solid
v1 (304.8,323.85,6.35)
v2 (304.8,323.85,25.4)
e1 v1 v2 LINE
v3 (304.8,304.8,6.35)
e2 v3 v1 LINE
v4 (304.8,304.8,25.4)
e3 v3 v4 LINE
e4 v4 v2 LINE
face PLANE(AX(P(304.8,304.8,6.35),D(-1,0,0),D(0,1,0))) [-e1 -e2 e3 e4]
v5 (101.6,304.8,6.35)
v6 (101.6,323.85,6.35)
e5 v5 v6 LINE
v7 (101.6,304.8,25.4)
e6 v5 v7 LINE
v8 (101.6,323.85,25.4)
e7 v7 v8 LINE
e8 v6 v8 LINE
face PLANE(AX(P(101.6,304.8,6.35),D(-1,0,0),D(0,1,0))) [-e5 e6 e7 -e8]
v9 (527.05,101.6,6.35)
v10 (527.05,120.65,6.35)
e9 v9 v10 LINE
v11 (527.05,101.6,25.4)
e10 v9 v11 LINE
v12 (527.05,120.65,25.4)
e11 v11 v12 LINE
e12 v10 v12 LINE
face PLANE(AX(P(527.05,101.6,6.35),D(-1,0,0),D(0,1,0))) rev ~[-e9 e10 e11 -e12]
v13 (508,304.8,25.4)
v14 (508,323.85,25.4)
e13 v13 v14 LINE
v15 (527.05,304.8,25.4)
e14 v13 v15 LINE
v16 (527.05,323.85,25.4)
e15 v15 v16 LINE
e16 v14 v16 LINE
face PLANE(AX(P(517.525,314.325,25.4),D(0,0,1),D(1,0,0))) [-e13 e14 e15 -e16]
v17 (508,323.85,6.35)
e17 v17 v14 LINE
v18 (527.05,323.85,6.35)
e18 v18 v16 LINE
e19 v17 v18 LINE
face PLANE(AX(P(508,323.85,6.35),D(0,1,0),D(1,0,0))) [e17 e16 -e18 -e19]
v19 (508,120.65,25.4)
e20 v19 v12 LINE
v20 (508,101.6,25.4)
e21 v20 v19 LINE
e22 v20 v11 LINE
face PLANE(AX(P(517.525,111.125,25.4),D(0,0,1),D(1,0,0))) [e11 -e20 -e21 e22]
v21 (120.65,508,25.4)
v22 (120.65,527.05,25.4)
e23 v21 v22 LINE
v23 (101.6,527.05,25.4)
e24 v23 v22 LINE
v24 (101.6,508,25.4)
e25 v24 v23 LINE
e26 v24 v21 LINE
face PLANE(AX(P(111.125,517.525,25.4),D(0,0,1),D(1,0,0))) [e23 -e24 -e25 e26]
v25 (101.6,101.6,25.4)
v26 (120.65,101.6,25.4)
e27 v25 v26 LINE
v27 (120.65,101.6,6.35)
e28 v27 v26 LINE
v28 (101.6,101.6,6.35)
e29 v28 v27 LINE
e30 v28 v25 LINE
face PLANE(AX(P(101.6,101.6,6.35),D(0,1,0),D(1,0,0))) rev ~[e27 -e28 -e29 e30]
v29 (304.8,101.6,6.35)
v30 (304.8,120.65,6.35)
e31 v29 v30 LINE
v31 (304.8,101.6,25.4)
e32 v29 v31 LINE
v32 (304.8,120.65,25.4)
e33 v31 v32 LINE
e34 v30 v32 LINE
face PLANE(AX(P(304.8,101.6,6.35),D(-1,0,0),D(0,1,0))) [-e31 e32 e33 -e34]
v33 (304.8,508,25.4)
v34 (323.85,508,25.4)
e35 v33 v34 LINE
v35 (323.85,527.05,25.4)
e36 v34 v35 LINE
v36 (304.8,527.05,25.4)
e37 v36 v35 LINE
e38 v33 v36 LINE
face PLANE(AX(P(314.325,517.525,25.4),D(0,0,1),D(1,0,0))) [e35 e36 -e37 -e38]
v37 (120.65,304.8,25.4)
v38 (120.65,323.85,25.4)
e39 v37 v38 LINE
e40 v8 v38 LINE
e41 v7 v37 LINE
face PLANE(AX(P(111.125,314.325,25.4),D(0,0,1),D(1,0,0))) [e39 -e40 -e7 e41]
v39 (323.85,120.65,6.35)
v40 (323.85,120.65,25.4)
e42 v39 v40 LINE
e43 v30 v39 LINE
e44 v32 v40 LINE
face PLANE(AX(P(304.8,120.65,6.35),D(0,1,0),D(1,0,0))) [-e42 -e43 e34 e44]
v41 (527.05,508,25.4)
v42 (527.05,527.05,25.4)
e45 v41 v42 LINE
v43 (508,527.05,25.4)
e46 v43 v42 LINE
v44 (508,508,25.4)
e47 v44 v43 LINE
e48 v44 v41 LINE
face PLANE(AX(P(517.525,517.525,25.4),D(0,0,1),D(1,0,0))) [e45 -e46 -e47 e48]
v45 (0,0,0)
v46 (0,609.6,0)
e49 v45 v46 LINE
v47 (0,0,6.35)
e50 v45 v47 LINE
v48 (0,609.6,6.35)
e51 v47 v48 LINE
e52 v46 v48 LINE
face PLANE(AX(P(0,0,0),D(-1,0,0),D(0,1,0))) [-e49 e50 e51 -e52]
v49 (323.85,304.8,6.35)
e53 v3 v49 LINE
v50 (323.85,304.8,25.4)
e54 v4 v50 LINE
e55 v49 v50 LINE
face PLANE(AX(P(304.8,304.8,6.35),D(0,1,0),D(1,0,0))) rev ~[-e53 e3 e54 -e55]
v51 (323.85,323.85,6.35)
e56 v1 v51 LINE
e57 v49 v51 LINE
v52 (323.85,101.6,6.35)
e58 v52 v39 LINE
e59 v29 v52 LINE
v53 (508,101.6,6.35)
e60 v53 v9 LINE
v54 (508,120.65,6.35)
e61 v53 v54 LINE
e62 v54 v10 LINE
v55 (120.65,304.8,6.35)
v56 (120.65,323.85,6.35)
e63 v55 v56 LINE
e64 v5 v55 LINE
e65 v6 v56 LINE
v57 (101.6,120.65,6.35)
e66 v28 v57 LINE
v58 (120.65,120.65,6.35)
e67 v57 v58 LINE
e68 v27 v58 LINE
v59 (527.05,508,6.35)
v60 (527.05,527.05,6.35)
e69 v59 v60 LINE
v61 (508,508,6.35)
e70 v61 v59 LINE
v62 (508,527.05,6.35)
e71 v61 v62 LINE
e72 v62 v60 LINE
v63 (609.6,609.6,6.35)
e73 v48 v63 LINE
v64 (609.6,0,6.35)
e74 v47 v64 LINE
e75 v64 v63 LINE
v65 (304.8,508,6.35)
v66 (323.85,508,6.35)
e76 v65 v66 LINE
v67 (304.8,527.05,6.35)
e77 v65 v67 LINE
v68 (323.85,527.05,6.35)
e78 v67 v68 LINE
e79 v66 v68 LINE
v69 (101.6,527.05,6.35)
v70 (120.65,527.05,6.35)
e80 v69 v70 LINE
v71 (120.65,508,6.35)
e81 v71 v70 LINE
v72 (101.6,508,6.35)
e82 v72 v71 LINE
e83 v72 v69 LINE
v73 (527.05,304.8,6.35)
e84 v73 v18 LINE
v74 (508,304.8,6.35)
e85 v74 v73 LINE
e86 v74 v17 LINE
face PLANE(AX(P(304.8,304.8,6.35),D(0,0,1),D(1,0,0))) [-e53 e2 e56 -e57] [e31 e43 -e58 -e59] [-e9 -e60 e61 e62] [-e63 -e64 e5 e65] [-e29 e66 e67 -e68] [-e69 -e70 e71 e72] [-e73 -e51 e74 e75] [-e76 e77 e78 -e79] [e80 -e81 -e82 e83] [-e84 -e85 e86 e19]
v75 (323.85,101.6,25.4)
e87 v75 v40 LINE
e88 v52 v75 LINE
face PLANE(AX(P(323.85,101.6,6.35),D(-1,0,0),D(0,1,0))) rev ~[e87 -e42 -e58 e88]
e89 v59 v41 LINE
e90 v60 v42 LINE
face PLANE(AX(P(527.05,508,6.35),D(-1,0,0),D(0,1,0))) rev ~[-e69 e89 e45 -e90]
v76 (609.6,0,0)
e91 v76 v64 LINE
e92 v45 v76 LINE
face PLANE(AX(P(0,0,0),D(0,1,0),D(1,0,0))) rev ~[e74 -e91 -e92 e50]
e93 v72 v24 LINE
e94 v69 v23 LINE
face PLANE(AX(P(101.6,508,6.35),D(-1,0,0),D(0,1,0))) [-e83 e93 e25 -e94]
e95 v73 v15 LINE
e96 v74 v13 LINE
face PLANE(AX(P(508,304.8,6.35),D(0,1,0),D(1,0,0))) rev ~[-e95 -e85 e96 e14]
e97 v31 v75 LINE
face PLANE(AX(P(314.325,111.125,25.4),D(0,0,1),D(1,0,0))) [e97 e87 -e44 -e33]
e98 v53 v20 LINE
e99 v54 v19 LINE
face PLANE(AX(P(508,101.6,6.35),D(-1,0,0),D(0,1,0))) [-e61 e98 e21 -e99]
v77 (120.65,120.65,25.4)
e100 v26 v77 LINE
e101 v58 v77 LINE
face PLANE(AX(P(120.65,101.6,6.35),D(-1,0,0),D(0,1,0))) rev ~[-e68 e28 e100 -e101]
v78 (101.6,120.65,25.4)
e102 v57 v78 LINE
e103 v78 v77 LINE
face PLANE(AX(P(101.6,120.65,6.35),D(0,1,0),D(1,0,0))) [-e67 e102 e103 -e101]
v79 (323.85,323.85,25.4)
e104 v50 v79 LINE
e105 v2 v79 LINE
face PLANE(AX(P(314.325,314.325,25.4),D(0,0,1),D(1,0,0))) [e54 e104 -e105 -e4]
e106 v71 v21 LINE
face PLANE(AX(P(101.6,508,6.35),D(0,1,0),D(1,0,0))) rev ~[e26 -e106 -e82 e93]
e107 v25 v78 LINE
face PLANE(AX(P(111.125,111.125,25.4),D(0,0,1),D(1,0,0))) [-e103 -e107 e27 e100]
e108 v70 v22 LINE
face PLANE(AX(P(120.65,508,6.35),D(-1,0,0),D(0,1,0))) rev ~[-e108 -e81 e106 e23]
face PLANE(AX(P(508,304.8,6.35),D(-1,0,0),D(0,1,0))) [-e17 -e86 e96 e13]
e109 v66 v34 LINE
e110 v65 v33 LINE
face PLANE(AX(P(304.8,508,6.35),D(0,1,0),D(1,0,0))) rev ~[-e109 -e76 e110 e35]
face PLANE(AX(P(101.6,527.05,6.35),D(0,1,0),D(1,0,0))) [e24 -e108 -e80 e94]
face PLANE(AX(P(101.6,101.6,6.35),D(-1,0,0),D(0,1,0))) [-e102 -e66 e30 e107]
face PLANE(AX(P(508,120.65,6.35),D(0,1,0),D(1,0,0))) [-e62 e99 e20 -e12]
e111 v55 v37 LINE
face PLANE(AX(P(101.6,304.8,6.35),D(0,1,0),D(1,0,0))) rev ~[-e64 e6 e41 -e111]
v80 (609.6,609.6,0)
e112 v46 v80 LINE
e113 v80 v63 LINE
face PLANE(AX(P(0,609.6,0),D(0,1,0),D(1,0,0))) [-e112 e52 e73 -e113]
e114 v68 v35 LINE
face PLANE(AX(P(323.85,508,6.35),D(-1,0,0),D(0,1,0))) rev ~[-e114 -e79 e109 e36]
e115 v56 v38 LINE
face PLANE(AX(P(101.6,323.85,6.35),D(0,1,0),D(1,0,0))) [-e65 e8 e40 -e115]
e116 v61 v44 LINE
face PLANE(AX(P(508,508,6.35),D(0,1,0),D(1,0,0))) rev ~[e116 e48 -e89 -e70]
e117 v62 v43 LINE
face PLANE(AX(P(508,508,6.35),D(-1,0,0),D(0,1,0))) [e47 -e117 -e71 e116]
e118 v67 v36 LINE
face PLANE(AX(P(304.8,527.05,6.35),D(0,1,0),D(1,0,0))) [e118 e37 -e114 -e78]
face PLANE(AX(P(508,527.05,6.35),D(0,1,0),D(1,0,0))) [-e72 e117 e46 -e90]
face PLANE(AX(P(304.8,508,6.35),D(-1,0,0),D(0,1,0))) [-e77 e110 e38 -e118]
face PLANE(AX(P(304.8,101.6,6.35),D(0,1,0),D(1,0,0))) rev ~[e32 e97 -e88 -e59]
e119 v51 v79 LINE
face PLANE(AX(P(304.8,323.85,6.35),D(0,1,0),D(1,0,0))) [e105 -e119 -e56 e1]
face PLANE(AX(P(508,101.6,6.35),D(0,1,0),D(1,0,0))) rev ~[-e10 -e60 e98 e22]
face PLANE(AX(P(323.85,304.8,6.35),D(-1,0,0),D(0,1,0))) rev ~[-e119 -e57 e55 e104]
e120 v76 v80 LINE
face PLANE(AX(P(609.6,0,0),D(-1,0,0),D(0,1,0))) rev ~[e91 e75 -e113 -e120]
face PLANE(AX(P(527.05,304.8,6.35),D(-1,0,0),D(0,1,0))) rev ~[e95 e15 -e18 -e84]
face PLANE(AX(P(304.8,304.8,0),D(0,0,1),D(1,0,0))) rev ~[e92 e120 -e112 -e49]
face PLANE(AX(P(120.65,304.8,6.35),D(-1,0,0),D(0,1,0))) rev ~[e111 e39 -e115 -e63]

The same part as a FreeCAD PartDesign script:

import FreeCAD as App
import Part
import Sketcher

V = App.Vector
Q = App.Units.Quantity

doc = App.newDocument("Part")
body = doc.addObject("PartDesign::Body", "Body")

# Sketch on XY plane
sketch1 = body.newObject("Sketcher::SketchObject", "Sketch")
sketch1.AttachmentSupport = (doc.getObject("XY_Plane"), [""])
sketch1.MapMode = "FlatFace"
sketch1.addGeometry(Part.LineSegment(V(0, 610, 0), V(0, 0, 0)), False)
sketch1.addGeometry(Part.LineSegment(V(0, 0, 0), V(610, 0, 0)), False)
sketch1.addGeometry(Part.LineSegment(V(610, 0, 0), V(610, 610, 0)), False)
sketch1.addGeometry(Part.LineSegment(V(610, 610, 0), V(0, 610, 0)), False)
sketch1.addConstraint(Sketcher.Constraint("Coincident", 0, 2, 1, 1))
sketch1.addConstraint(Sketcher.Constraint("Coincident", 1, 2, 2, 1))
sketch1.addConstraint(Sketcher.Constraint("Coincident", 2, 2, 3, 1))
sketch1.addConstraint(Sketcher.Constraint("Coincident", 3, 2, 0, 1))
sketch1.addConstraint(Sketcher.Constraint("Vertical", 0))
sketch1.addConstraint(Sketcher.Constraint("Horizontal", 1))
sketch1.addConstraint(Sketcher.Constraint("Vertical", 2))
sketch1.addConstraint(Sketcher.Constraint("Horizontal", 3))
sketch1.addConstraint(Sketcher.Constraint("Coincident", 0, 2, -1, 1))
sketch1.addConstraint(Sketcher.Constraint("Equal", 3, 0))
sketch1.addConstraint(Sketcher.Constraint("DistanceX", 1, 1, 1, 2, Q("24 in")))
pad1 = body.newObject("PartDesign::Pad", "Pad")
pad1.Profile = sketch1
pad1.Length = Q("0.25 in")

# Sketch on XY plane
sketch2 = body.newObject("Sketcher::SketchObject", "Sketch001")
sketch2.AttachmentSupport = (doc.getObject("XY_Plane"), [""])
sketch2.MapMode = "FlatFace"
sketch2.AttachmentOffset = App.Placement(V(0, 0, 0.25 * 25.4), App.Rotation())
sketch2.addGeometry(Part.LineSegment(V(102, 121, 0), V(102, 102, 0)), False)
sketch2.addGeometry(Part.LineSegment(V(102, 102, 0), V(121, 102, 0)), False)
sketch2.addGeometry(Part.LineSegment(V(121, 102, 0), V(121, 121, 0)), False)
sketch2.addGeometry(Part.LineSegment(V(121, 121, 0), V(102, 121, 0)), False)
sketch2.addGeometry(Part.LineSegment(V(102, 324, 0), V(102, 305, 0)), False)
sketch2.addGeometry(Part.LineSegment(V(102, 305, 0), V(121, 305, 0)), False)
sketch2.addGeometry(Part.LineSegment(V(121, 305, 0), V(121, 324, 0)), False)
sketch2.addGeometry(Part.LineSegment(V(121, 324, 0), V(102, 324, 0)), False)
sketch2.addGeometry(Part.LineSegment(V(102, 527, 0), V(102, 508, 0)), False)
sketch2.addGeometry(Part.LineSegment(V(102, 508, 0), V(121, 508, 0)), False)
sketch2.addGeometry(Part.LineSegment(V(121, 508, 0), V(121, 527, 0)), False)
sketch2.addGeometry(Part.LineSegment(V(121, 527, 0), V(102, 527, 0)), False)
sketch2.addGeometry(Part.LineSegment(V(305, 121, 0), V(305, 102, 0)), False)
sketch2.addGeometry(Part.LineSegment(V(305, 102, 0), V(324, 102, 0)), False)
sketch2.addGeometry(Part.LineSegment(V(324, 102, 0), V(324, 121, 0)), False)
sketch2.addGeometry(Part.LineSegment(V(324, 121, 0), V(305, 121, 0)), False)
sketch2.addGeometry(Part.LineSegment(V(305, 324, 0), V(305, 305, 0)), False)
sketch2.addGeometry(Part.LineSegment(V(305, 305, 0), V(324, 305, 0)), False)
sketch2.addGeometry(Part.LineSegment(V(324, 305, 0), V(324, 324, 0)), False)
sketch2.addGeometry(Part.LineSegment(V(324, 324, 0), V(305, 324, 0)), False)
sketch2.addGeometry(Part.LineSegment(V(305, 527, 0), V(305, 508, 0)), False)
sketch2.addGeometry(Part.LineSegment(V(305, 508, 0), V(324, 508, 0)), False)
sketch2.addGeometry(Part.LineSegment(V(324, 508, 0), V(324, 527, 0)), False)
sketch2.addGeometry(Part.LineSegment(V(324, 527, 0), V(305, 527, 0)), False)
sketch2.addGeometry(Part.LineSegment(V(508, 121, 0), V(508, 102, 0)), False)
sketch2.addGeometry(Part.LineSegment(V(508, 102, 0), V(527, 102, 0)), False)
sketch2.addGeometry(Part.LineSegment(V(527, 102, 0), V(527, 121, 0)), False)
sketch2.addGeometry(Part.LineSegment(V(527, 121, 0), V(508, 121, 0)), False)
sketch2.addGeometry(Part.LineSegment(V(508, 324, 0), V(508, 305, 0)), False)
sketch2.addGeometry(Part.LineSegment(V(508, 305, 0), V(527, 305, 0)), False)
sketch2.addGeometry(Part.LineSegment(V(527, 305, 0), V(527, 324, 0)), False)
sketch2.addGeometry(Part.LineSegment(V(527, 324, 0), V(508, 324, 0)), False)
sketch2.addGeometry(Part.LineSegment(V(508, 527, 0), V(508, 508, 0)), False)
sketch2.addGeometry(Part.LineSegment(V(508, 508, 0), V(527, 508, 0)), False)
sketch2.addGeometry(Part.LineSegment(V(527, 508, 0), V(527, 527, 0)), False)
sketch2.addGeometry(Part.LineSegment(V(527, 527, 0), V(508, 527, 0)), False)
sketch2.addConstraint(Sketcher.Constraint("Coincident", 0, 2, 1, 1))
sketch2.addConstraint(Sketcher.Constraint("Coincident", 1, 2, 2, 1))
sketch2.addConstraint(Sketcher.Constraint("Coincident", 2, 2, 3, 1))
sketch2.addConstraint(Sketcher.Constraint("Coincident", 3, 2, 0, 1))
sketch2.addConstraint(Sketcher.Constraint("Coincident", 4, 2, 5, 1))
sketch2.addConstraint(Sketcher.Constraint("Coincident", 5, 2, 6, 1))
sketch2.addConstraint(Sketcher.Constraint("Coincident", 6, 2, 7, 1))
sketch2.addConstraint(Sketcher.Constraint("Coincident", 7, 2, 4, 1))
sketch2.addConstraint(Sketcher.Constraint("Coincident", 8, 2, 9, 1))
sketch2.addConstraint(Sketcher.Constraint("Coincident", 9, 2, 10, 1))
sketch2.addConstraint(Sketcher.Constraint("Coincident", 10, 2, 11, 1))
sketch2.addConstraint(Sketcher.Constraint("Coincident", 11, 2, 8, 1))
sketch2.addConstraint(Sketcher.Constraint("Coincident", 12, 2, 13, 1))
sketch2.addConstraint(Sketcher.Constraint("Coincident", 13, 2, 14, 1))
sketch2.addConstraint(Sketcher.Constraint("Coincident", 14, 2, 15, 1))
sketch2.addConstraint(Sketcher.Constraint("Coincident", 15, 2, 12, 1))
sketch2.addConstraint(Sketcher.Constraint("Coincident", 16, 2, 17, 1))
sketch2.addConstraint(Sketcher.Constraint("Coincident", 17, 2, 18, 1))
sketch2.addConstraint(Sketcher.Constraint("Coincident", 18, 2, 19, 1))
sketch2.addConstraint(Sketcher.Constraint("Coincident", 19, 2, 16, 1))
sketch2.addConstraint(Sketcher.Constraint("Coincident", 20, 2, 21, 1))
sketch2.addConstraint(Sketcher.Constraint("Coincident", 21, 2, 22, 1))
sketch2.addConstraint(Sketcher.Constraint("Coincident", 22, 2, 23, 1))
sketch2.addConstraint(Sketcher.Constraint("Coincident", 23, 2, 20, 1))
sketch2.addConstraint(Sketcher.Constraint("Coincident", 24, 2, 25, 1))
sketch2.addConstraint(Sketcher.Constraint("Coincident", 25, 2, 26, 1))
sketch2.addConstraint(Sketcher.Constraint("Coincident", 26, 2, 27, 1))
sketch2.addConstraint(Sketcher.Constraint("Coincident", 27, 2, 24, 1))
sketch2.addConstraint(Sketcher.Constraint("Coincident", 28, 2, 29, 1))
sketch2.addConstraint(Sketcher.Constraint("Coincident", 29, 2, 30, 1))
sketch2.addConstraint(Sketcher.Constraint("Coincident", 30, 2, 31, 1))
sketch2.addConstraint(Sketcher.Constraint("Coincident", 31, 2, 28, 1))
sketch2.addConstraint(Sketcher.Constraint("Coincident", 32, 2, 33, 1))
sketch2.addConstraint(Sketcher.Constraint("Coincident", 33, 2, 34, 1))
sketch2.addConstraint(Sketcher.Constraint("Coincident", 34, 2, 35, 1))
sketch2.addConstraint(Sketcher.Constraint("Coincident", 35, 2, 32, 1))
sketch2.addConstraint(Sketcher.Constraint("Vertical", 0))
sketch2.addConstraint(Sketcher.Constraint("Horizontal", 1))
sketch2.addConstraint(Sketcher.Constraint("Vertical", 2))
sketch2.addConstraint(Sketcher.Constraint("Horizontal", 3))
sketch2.addConstraint(Sketcher.Constraint("Vertical", 4))
sketch2.addConstraint(Sketcher.Constraint("Horizontal", 5))
sketch2.addConstraint(Sketcher.Constraint("Vertical", 6))
sketch2.addConstraint(Sketcher.Constraint("Horizontal", 7))
sketch2.addConstraint(Sketcher.Constraint("Vertical", 8))
sketch2.addConstraint(Sketcher.Constraint("Horizontal", 9))
sketch2.addConstraint(Sketcher.Constraint("Vertical", 10))
sketch2.addConstraint(Sketcher.Constraint("Horizontal", 11))
sketch2.addConstraint(Sketcher.Constraint("Vertical", 12))
sketch2.addConstraint(Sketcher.Constraint("Horizontal", 13))
sketch2.addConstraint(Sketcher.Constraint("Vertical", 14))
sketch2.addConstraint(Sketcher.Constraint("Horizontal", 15))
sketch2.addConstraint(Sketcher.Constraint("Vertical", 16))
sketch2.addConstraint(Sketcher.Constraint("Horizontal", 17))
sketch2.addConstraint(Sketcher.Constraint("Vertical", 18))
sketch2.addConstraint(Sketcher.Constraint("Horizontal", 19))
sketch2.addConstraint(Sketcher.Constraint("Vertical", 20))
sketch2.addConstraint(Sketcher.Constraint("Horizontal", 21))
sketch2.addConstraint(Sketcher.Constraint("Vertical", 22))
sketch2.addConstraint(Sketcher.Constraint("Horizontal", 23))
sketch2.addConstraint(Sketcher.Constraint("Vertical", 24))
sketch2.addConstraint(Sketcher.Constraint("Horizontal", 25))
sketch2.addConstraint(Sketcher.Constraint("Vertical", 26))
sketch2.addConstraint(Sketcher.Constraint("Horizontal", 27))
sketch2.addConstraint(Sketcher.Constraint("Vertical", 28))
sketch2.addConstraint(Sketcher.Constraint("Horizontal", 29))
sketch2.addConstraint(Sketcher.Constraint("Vertical", 30))
sketch2.addConstraint(Sketcher.Constraint("Horizontal", 31))
sketch2.addConstraint(Sketcher.Constraint("Vertical", 32))
sketch2.addConstraint(Sketcher.Constraint("Horizontal", 33))
sketch2.addConstraint(Sketcher.Constraint("Vertical", 34))
sketch2.addConstraint(Sketcher.Constraint("Horizontal", 35))
sketch2.addConstraint(Sketcher.Constraint("Horizontal", 1, 2, 12, 2))
sketch2.addConstraint(Sketcher.Constraint("Horizontal", 3, 2, 14, 2))
sketch2.addConstraint(Sketcher.Constraint("Horizontal", 5, 2, 16, 2))
sketch2.addConstraint(Sketcher.Constraint("Horizontal", 7, 2, 18, 2))
sketch2.addConstraint(Sketcher.Constraint("Horizontal", 9, 2, 20, 2))
sketch2.addConstraint(Sketcher.Constraint("Horizontal", 11, 2, 22, 2))
sketch2.addConstraint(Sketcher.Constraint("Horizontal", 13, 2, 24, 2))
sketch2.addConstraint(Sketcher.Constraint("Horizontal", 15, 2, 26, 2))
sketch2.addConstraint(Sketcher.Constraint("Horizontal", 17, 2, 28, 2))
sketch2.addConstraint(Sketcher.Constraint("Horizontal", 19, 2, 30, 2))
sketch2.addConstraint(Sketcher.Constraint("Horizontal", 21, 2, 32, 2))
sketch2.addConstraint(Sketcher.Constraint("Horizontal", 23, 2, 34, 2))
sketch2.addConstraint(Sketcher.Constraint("Vertical", 3, 2, 4, 2))
sketch2.addConstraint(Sketcher.Constraint("Vertical", 2, 2, 5, 2))
sketch2.addConstraint(Sketcher.Constraint("Vertical", 7, 2, 8, 2))
sketch2.addConstraint(Sketcher.Constraint("Vertical", 6, 2, 9, 2))
sketch2.addConstraint(Sketcher.Constraint("Vertical", 15, 2, 16, 2))
sketch2.addConstraint(Sketcher.Constraint("Vertical", 14, 2, 17, 2))
sketch2.addConstraint(Sketcher.Constraint("Vertical", 19, 2, 20, 2))
sketch2.addConstraint(Sketcher.Constraint("Vertical", 18, 2, 21, 2))
sketch2.addConstraint(Sketcher.Constraint("Vertical", 27, 2, 28, 2))
sketch2.addConstraint(Sketcher.Constraint("Vertical", 26, 2, 29, 2))
sketch2.addConstraint(Sketcher.Constraint("Vertical", 31, 2, 32, 2))
sketch2.addConstraint(Sketcher.Constraint("Vertical", 30, 2, 33, 2))
sketch2.addConstraint(Sketcher.Constraint("Equal", 11, 13))
sketch2.addConstraint(Sketcher.Constraint("Equal", 23, 25))
sketch2.addConstraint(Sketcher.Constraint("Equal", 35, 0))
sketch2.addConstraint(Sketcher.Constraint("Equal", 2, 4))
sketch2.addConstraint(Sketcher.Constraint("Equal", 6, 8))
sketch2.addConstraint(Sketcher.Constraint("DistanceX", -1, 1, 0, 2, Q("4 in")))
sketch2.addConstraint(Sketcher.Constraint("DistanceY", -1, 1, 0, 2, Q("4 in")))
sketch2.addConstraint(Sketcher.Constraint("DistanceY", -1, 1, 4, 2, Q("12 in")))
sketch2.addConstraint(Sketcher.Constraint("DistanceY", -1, 1, 8, 2, Q("20 in")))
sketch2.addConstraint(Sketcher.Constraint("DistanceX", -1, 1, 12, 2, Q("12 in")))
sketch2.addConstraint(Sketcher.Constraint("DistanceX", -1, 1, 24, 2, Q("20 in")))
sketch2.addConstraint(Sketcher.Constraint("DistanceX", 1, 1, 1, 2, Q("0.75 in")))
pad2 = body.newObject("PartDesign::Pad", "Pad001")
pad2.Profile = sketch2
pad2.Length = Q("0.75 in")

doc.recompute()
